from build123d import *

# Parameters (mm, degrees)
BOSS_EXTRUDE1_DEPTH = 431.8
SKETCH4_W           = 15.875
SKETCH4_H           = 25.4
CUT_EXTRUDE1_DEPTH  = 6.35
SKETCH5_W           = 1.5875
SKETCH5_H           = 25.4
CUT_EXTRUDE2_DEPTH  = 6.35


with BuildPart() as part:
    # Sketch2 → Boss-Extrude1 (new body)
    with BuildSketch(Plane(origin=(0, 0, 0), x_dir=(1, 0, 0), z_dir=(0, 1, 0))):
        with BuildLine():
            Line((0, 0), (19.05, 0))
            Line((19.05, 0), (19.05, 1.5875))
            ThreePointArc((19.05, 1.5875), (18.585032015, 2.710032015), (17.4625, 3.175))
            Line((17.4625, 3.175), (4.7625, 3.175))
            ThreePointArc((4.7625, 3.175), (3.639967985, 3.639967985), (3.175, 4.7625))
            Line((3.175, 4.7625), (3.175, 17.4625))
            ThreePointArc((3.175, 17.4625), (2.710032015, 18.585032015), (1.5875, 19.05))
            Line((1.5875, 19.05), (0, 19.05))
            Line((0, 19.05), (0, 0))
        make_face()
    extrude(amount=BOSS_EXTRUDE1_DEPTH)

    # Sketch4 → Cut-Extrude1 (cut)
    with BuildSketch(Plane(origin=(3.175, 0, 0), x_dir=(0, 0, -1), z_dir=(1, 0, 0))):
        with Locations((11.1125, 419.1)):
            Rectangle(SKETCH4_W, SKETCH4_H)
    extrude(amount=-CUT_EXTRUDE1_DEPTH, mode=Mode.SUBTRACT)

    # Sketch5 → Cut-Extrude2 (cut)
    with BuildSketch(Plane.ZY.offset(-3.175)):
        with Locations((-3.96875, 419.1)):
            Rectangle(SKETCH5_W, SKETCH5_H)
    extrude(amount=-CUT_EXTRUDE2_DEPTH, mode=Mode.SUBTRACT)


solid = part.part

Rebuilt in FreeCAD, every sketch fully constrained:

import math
import FreeCAD as App
import Part
import Sketcher
Q = App.Units.Quantity

doc = App.newDocument("Part")
params = doc.addObject("Spreadsheet::Sheet", "Params")
for row, (alias, value) in enumerate([
    ("sketch1_width", "0.5 in"),
    ("sketch1_radius", "0.0625 in"),
    ("sketch1_width2", "0.75 in"),
    ("pad1_length", "17 in"),
    ("sketch2_width", "1 in"),
    ("sketch2_height", "0.625 in"),
    ("pocket1_length", "0.25 in"),
    ("sketch3_width", "1 in"),
    ("sketch3_height", "0.0625 in"),
    ("pocket2_length", "0.25 in"),
], start=1):
    params.set(f"A{row}", alias)
    params.set(f"B{row}", "=" + value)
    params.setAlias(f"B{row}", alias)

body = doc.addObject("PartDesign::Body", "Body")

sketch1 = body.newObject("Sketcher::SketchObject", "Sketch")
sketch1.AttachmentSupport = (doc.getObject("XZ_Plane"), [""])
sketch1.MapMode = "FlatFace"
sketch1.addGeometry(Part.LineSegment(App.Vector(0, 0, 0), App.Vector(19.05, 0, 0)), False)
sketch1.addGeometry(Part.LineSegment(App.Vector(19.05, 0, 0), App.Vector(19.05, -1.5875, 0)), False)
sketch1.addGeometry(Part.ArcOfCircle(Part.Circle(App.Vector(17.4625, -1.5875, 0), App.Vector(0, 0, 1), 1.5875), math.radians(-90), math.radians(0)), False)
sketch1.addGeometry(Part.LineSegment(App.Vector(17.4625, -3.175, 0), App.Vector(4.7625, -3.175, 0)), False)
sketch1.addGeometry(Part.ArcOfCircle(Part.Circle(App.Vector(4.7625, -4.7625, 0), App.Vector(0, 0, 1), 1.5875), math.radians(90), math.radians(180)), False)
sketch1.addGeometry(Part.LineSegment(App.Vector(3.175, -4.7625, 0), App.Vector(3.175, -17.4625, 0)), False)
sketch1.addGeometry(Part.ArcOfCircle(Part.Circle(App.Vector(1.5875, -17.4625, 0), App.Vector(0, 0, 1), 1.5875), math.radians(-90), math.radians(0)), False)
sketch1.addGeometry(Part.LineSegment(App.Vector(1.5875, -19.05, 0), App.Vector(0, -19.05, 0)), False)
sketch1.addGeometry(Part.LineSegment(App.Vector(0, -19.05, 0), App.Vector(0, 0, 0)), False)
sketch1.addConstraint(Sketcher.Constraint("Coincident", 0, 2, 1, 1))
sketch1.addConstraint(Sketcher.Constraint("Tangent", 1, 2, 2, 2))
sketch1.addConstraint(Sketcher.Constraint("Tangent", 2, 1, 3, 1))
sketch1.addConstraint(Sketcher.Constraint("Tangent", 3, 2, 4, 1))
sketch1.addConstraint(Sketcher.Constraint("Tangent", 4, 2, 5, 1))
sketch1.addConstraint(Sketcher.Constraint("Tangent", 5, 2, 6, 2))
sketch1.addConstraint(Sketcher.Constraint("Tangent", 6, 1, 7, 1))
sketch1.addConstraint(Sketcher.Constraint("Coincident", 7, 2, 8, 1))
sketch1.addConstraint(Sketcher.Constraint("Coincident", 8, 2, 0, 1))
sketch1.addConstraint(Sketcher.Constraint("Horizontal", 0))
sketch1.addConstraint(Sketcher.Constraint("Vertical", 1))
sketch1.addConstraint(Sketcher.Constraint("Horizontal", 3))
sketch1.addConstraint(Sketcher.Constraint("Vertical", 5))
sketch1.addConstraint(Sketcher.Constraint("Horizontal", 7))
sketch1.addConstraint(Sketcher.Constraint("Vertical", 8))
sketch1.addConstraint(Sketcher.Constraint("Coincident", 8, 2, -1, 1))
sketch1.addConstraint(Sketcher.Constraint("Equal", 2, 4))
sketch1.addConstraint(Sketcher.Constraint("Equal", 4, 6))
sketch1.addConstraint(Sketcher.Constraint("Equal", 7, 1))
sketch1.addConstraint(Sketcher.Constraint("Equal", 3, 5))
sketch1.addConstraint(Sketcher.Constraint("DistanceX", 3, 2, 3, 1, Q("0.5 in")))
sketch1.addConstraint(Sketcher.Constraint("Radius", 2, Q("0.0625 in")))
sketch1.addConstraint(Sketcher.Constraint("DistanceX", 0, 1, 0, 2, Q("0.75 in")))
sketch1.setExpression("Constraints[20]", "Params.sketch1_width")
sketch1.setExpression("Constraints[21]", "Params.sketch1_radius")
sketch1.setExpression("Constraints[22]", "Params.sketch1_width2")
pad1 = body.newObject("PartDesign::Pad", "Pad")
pad1.Profile = sketch1
pad1.setExpression("Length", "Params.pad1_length")
pad1.Reversed = True

sketch2 = body.newObject("Sketcher::SketchObject", "Sketch001")
sketch2.AttachmentSupport = (doc.getObject("YZ_Plane"), [""])
sketch2.MapMode = "FlatFace"
sketch2.AttachmentOffset = App.Placement(App.Vector(0, 0, 0.125 * 25.4), App.Rotation())
sketch2.addGeometry(Part.LineSegment(App.Vector(431.8, -3.175, 0), App.Vector(406.4, -3.175, 0)), False)
sketch2.addGeometry(Part.LineSegment(App.Vector(406.4, -3.175, 0), App.Vector(406.4, -19.05, 0)), False)
sketch2.addGeometry(Part.LineSegment(App.Vector(406.4, -19.05, 0), App.Vector(431.8, -19.05, 0)), False)
sketch2.addGeometry(Part.LineSegment(App.Vector(431.8, -19.05, 0), App.Vector(431.8, -3.175, 0)), False)
sketch2.addConstraint(Sketcher.Constraint("Coincident", 0, 2, 1, 1))
sketch2.addConstraint(Sketcher.Constraint("Coincident", 1, 2, 2, 1))
sketch2.addConstraint(Sketcher.Constraint("Coincident", 2, 2, 3, 1))
sketch2.addConstraint(Sketcher.Constraint("Coincident", 3, 2, 0, 1))
sketch2.addConstraint(Sketcher.Constraint("Horizontal", 0))
sketch2.addConstraint(Sketcher.Constraint("Vertical", 1))
sketch2.addConstraint(Sketcher.Constraint("Horizontal", 2))
sketch2.addConstraint(Sketcher.Constraint("Vertical", 3))
sketch2.addConstraint(Sketcher.Constraint("DistanceX", 0, 2, 0, 1, Q("1 in")))
sketch2.addConstraint(Sketcher.Constraint("DistanceX", -1, 1, 0, 2, Q("16 in")))
sketch2.addConstraint(Sketcher.Constraint("DistanceY", 1, 2, 1, 1, Q("0.625 in")))
sketch2.addConstraint(Sketcher.Constraint("DistanceY", 1, 2, -1, 1, Q("0.75 in")))
sketch2.setExpression("Constraints[8]", "Params.sketch2_width")
sketch2.setExpression("Constraints[10]", "Params.sketch2_height")
pocket1 = body.newObject("PartDesign::Pocket", "Pocket")
pocket1.Profile = sketch2
pocket1.setExpression("Length", "Params.pocket1_length")

sketch3 = body.newObject("Sketcher::SketchObject", "Sketch002")
sketch3.AttachmentSupport = (doc.getObject("YZ_Plane"), [""])
sketch3.MapMode = "FlatFace"
sketch3.AttachmentOffset = App.Placement(App.Vector(0, 0, 0.125 * 25.4), App.Rotation())
sketch3.addGeometry(Part.LineSegment(App.Vector(431.8, -4.7625, 0), App.Vector(406.4, -4.7625, 0)), False)
sketch3.addGeometry(Part.LineSegment(App.Vector(406.4, -4.7625, 0), App.Vector(406.4, -3.175, 0)), False)
sketch3.addGeometry(Part.LineSegment(App.Vector(406.4, -3.175, 0), App.Vector(431.8, -3.175, 0)), False)
sketch3.addGeometry(Part.LineSegment(App.Vector(431.8, -3.175, 0), App.Vector(431.8, -4.7625, 0)), False)
sketch3.addConstraint(Sketcher.Constraint("Coincident", 0, 2, 1, 1))
sketch3.addConstraint(Sketcher.Constraint("Coincident", 1, 2, 2, 1))
sketch3.addConstraint(Sketcher.Constraint("Coincident", 2, 2, 3, 1))
sketch3.addConstraint(Sketcher.Constraint("Coincident", 3, 2, 0, 1))
sketch3.addConstraint(Sketcher.Constraint("Horizontal", 0))
sketch3.addConstraint(Sketcher.Constraint("Vertical", 1))
sketch3.addConstraint(Sketcher.Constraint("Horizontal", 2))
sketch3.addConstraint(Sketcher.Constraint("Vertical", 3))
sketch3.addConstraint(Sketcher.Constraint("DistanceX", 0, 2, 0, 1, Q("1 in")))
sketch3.addConstraint(Sketcher.Constraint("DistanceX", -1, 1, 0, 2, Q("16 in")))
sketch3.addConstraint(Sketcher.Constraint("DistanceY", 1, 1, 1, 2, Q("0.0625 in")))
sketch3.addConstraint(Sketcher.Constraint("DistanceY", 0, 2, -1, 1, Q("0.1875 in")))
sketch3.setExpression("Constraints[8]", "Params.sketch3_width")
sketch3.setExpression("Constraints[10]", "Params.sketch3_height")
pocket2 = body.newObject("PartDesign::Pocket", "Pocket001")
pocket2.Profile = sketch3
pocket2.setExpression("Length", "Params.pocket2_length")
pocket2.Reversed = True

doc.recompute()
